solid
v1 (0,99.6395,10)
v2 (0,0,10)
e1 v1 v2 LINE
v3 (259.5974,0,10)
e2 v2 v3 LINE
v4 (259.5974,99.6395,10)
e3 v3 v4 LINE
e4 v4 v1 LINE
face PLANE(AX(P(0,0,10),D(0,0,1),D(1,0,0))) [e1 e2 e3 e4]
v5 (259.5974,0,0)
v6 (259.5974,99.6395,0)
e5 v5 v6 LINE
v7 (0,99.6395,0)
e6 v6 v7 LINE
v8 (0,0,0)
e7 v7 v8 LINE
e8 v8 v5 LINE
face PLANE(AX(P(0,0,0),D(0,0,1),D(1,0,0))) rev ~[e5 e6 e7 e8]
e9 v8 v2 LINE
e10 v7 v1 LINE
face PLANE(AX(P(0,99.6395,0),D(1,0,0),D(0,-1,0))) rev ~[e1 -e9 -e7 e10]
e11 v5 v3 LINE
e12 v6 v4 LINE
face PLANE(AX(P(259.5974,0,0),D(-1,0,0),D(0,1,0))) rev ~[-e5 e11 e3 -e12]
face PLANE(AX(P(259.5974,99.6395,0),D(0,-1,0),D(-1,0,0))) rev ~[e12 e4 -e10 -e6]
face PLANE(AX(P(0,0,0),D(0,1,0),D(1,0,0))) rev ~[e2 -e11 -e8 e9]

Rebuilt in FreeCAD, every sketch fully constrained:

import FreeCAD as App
import Part
import Sketcher

doc = App.newDocument("Part")
body = doc.addObject("PartDesign::Body", "Body")

# Sketch on XY plane
sketch1 = body.newObject("Sketcher::SketchObject", "Sketch")
sketch1.AttachmentSupport = (doc.getObject("XY_Plane"), [""])
sketch1.MapMode = "FlatFace"
sketch1.addGeometry([
    Part.LineSegment(App.Vector(0, 99.6395, 0), App.Vector(0, 0, 0)),
    Part.LineSegment(App.Vector(0, 0, 0), App.Vector(259.5974, 0, 0)),
    Part.LineSegment(App.Vector(259.5974, 0, 0), App.Vector(259.5974, 99.6395, 0)),
    Part.LineSegment(App.Vector(259.5974, 99.6395, 0), App.Vector(0, 99.6395, 0)),
], False)
sketch1.addConstraint([
    Sketcher.Constraint("Coincident", 0, 2, 1, 1),
    Sketcher.Constraint("Coincident", 1, 2, 2, 1),
    Sketcher.Constraint("Coincident", 2, 2, 3, 1),
    Sketcher.Constraint("Coincident", 3, 2, 0, 1),
    Sketcher.Constraint("Vertical", 0),
    Sketcher.Constraint("Horizontal", 1),
    Sketcher.Constraint("Vertical", 2),
    Sketcher.Constraint("Horizontal", 3),
    Sketcher.Constraint("Coincident", 0, 2, -1, 1),
    Sketcher.Constraint("DistanceX", 1, 1, 1, 2, 259.5974),
    Sketcher.Constraint("DistanceY", 0, 2, 0, 1, 99.6395),
])
pad1 = body.newObject("PartDesign::Pad", "Pad")
pad1.Profile = sketch1
pad1.Length = 10

doc.recompute()
